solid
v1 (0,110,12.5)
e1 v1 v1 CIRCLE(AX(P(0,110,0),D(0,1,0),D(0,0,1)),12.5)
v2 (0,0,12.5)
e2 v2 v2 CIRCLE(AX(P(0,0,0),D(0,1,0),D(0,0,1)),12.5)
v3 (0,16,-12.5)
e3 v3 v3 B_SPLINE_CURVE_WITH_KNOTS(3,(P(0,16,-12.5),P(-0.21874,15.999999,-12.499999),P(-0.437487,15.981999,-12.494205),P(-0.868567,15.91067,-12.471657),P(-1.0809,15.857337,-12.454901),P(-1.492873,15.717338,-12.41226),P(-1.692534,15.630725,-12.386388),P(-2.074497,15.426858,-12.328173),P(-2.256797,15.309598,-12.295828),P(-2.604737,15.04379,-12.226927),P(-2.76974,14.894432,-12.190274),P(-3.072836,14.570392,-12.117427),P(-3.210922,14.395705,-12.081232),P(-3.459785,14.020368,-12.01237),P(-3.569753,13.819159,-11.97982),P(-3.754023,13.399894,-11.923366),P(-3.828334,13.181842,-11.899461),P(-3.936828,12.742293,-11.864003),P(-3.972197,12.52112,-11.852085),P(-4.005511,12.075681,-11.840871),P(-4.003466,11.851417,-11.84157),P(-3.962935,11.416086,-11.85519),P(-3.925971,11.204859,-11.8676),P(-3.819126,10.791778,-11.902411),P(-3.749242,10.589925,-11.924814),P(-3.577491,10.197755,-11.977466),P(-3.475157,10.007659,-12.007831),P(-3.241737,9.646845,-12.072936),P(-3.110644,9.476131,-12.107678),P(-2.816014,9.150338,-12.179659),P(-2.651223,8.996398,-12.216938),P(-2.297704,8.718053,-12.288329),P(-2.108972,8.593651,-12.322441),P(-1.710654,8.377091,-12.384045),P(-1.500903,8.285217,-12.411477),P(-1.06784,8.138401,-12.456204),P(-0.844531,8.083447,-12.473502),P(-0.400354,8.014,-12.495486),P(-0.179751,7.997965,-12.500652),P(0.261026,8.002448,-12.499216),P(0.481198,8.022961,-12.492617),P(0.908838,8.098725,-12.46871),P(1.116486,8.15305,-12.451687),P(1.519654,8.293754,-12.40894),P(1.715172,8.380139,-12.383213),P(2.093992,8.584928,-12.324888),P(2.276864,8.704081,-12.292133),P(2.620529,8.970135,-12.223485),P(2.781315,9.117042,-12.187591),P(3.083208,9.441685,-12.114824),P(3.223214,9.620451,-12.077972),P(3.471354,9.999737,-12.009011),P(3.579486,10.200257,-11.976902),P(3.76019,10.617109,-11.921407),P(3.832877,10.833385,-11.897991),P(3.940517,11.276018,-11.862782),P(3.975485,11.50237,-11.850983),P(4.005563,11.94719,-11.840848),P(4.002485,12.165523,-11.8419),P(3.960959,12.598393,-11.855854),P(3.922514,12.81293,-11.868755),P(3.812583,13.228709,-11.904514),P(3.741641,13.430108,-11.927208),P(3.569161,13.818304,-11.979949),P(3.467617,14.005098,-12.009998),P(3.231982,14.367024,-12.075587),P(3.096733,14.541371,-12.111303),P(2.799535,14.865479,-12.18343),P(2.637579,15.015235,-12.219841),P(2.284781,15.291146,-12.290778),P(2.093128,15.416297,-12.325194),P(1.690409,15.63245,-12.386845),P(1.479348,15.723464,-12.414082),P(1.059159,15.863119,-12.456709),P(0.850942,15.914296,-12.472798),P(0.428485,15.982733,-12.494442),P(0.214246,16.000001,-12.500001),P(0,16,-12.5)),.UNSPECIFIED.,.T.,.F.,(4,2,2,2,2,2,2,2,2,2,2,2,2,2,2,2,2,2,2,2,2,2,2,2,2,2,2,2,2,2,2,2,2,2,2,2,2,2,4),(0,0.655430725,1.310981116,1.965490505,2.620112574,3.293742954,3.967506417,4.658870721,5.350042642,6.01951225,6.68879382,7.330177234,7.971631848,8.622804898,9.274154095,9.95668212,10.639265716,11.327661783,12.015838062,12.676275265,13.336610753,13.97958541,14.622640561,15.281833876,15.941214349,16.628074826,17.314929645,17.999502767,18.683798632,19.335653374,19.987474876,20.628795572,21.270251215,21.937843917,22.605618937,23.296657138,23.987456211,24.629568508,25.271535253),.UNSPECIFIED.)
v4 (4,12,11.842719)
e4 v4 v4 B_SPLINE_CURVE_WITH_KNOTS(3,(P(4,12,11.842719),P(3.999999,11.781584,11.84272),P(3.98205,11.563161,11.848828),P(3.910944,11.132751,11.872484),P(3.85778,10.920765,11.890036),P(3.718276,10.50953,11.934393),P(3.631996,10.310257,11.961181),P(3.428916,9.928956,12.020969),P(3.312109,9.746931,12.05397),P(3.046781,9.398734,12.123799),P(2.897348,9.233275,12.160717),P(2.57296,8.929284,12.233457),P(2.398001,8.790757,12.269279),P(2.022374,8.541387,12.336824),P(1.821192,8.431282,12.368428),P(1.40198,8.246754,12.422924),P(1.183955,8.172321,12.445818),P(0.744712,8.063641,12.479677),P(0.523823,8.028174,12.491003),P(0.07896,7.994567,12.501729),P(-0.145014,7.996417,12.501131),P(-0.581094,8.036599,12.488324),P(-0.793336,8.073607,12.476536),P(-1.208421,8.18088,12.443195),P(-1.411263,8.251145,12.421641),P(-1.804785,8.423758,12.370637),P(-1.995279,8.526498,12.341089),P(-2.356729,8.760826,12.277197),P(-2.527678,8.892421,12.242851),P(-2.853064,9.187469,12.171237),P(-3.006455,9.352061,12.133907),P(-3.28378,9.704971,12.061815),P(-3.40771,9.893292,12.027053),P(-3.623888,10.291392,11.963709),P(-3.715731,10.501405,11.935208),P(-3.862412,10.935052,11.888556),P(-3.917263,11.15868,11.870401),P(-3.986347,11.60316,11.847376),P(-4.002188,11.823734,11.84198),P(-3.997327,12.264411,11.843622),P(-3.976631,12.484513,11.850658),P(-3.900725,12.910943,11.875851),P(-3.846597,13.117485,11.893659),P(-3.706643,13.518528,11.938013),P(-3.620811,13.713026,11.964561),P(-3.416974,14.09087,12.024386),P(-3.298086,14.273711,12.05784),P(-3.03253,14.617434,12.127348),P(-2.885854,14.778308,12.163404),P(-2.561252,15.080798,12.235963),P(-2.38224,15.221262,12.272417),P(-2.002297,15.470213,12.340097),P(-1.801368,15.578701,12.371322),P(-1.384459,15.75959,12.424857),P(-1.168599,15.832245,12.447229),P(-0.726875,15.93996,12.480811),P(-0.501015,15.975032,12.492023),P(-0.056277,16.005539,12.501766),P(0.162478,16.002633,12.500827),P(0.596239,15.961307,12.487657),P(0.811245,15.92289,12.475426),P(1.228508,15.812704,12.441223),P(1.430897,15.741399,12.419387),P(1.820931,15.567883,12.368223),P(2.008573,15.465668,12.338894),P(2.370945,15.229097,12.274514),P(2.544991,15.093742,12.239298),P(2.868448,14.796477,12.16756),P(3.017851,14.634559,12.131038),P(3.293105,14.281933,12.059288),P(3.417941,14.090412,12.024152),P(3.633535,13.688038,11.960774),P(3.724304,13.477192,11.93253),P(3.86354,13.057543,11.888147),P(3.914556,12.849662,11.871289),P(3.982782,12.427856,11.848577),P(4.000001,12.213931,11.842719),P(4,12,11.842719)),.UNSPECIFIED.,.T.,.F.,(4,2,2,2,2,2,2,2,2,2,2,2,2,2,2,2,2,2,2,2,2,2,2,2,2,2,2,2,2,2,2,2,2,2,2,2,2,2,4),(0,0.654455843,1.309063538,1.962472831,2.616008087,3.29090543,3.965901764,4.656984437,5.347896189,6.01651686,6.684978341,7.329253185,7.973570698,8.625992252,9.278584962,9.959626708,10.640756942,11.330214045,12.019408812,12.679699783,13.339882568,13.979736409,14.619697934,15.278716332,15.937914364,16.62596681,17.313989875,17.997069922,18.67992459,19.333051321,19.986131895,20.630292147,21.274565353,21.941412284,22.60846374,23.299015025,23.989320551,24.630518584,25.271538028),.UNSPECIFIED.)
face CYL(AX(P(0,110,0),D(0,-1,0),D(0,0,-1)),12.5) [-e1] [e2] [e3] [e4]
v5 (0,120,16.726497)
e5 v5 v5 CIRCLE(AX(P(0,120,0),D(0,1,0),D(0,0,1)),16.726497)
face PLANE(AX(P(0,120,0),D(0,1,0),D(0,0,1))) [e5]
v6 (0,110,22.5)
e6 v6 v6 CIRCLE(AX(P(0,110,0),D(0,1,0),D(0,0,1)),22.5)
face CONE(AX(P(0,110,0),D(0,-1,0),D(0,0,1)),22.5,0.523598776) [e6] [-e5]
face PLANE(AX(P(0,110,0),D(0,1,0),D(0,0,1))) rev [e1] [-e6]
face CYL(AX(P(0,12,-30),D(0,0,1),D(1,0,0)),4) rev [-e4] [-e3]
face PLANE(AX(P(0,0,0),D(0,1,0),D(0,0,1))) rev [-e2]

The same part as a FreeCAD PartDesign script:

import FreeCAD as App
import Part
import Sketcher
Q = App.Units.Quantity

doc = App.newDocument("Part")
body = doc.addObject("PartDesign::Body", "Body")

sketch1 = doc.addObject("Sketcher::SketchObject", "Sketch")
body.addObject(sketch1)
sketch1.AttachmentSupport = (doc.XZ_Plane, [""])
sketch1.MapMode = "FlatFace"
sketch1.addGeometry(Part.Circle(App.Vector(0, 0, 0), App.Vector(0, 0, 1), 12), False)
sketch1.addConstraint(Sketcher.Constraint("Coincident", 0, 3, -1, 1))
sketch1.addConstraint(Sketcher.Constraint("Diameter", 0, Q("25 mm")))
pad1 = doc.addObject("PartDesign::Pad", "Pad")
body.addObject(pad1)
pad1.Profile = sketch1
pad1.Length = 110
pad1.Reversed = True

sketch2 = doc.addObject("Sketcher::SketchObject", "Sketch001")
body.addObject(sketch2)
sketch2.AttachmentSupport = (doc.XZ_Plane, [""])
sketch2.MapMode = "FlatFace"
sketch2.AttachmentOffset = App.Placement(App.Vector(0, 0, -110), App.Rotation())
sketch2.addGeometry(Part.Circle(App.Vector(0, 0, 0), App.Vector(0, 0, 1), 22), False)
sketch2.addConstraint(Sketcher.Constraint("Coincident", 0, 3, -1, 1))
sketch2.addConstraint(Sketcher.Constraint("Diameter", 0, Q("45 mm")))
pad2 = doc.addObject("PartDesign::Pad", "Pad001")
body.addObject(pad2)
pad2.Profile = sketch2
pad2.Length = 10
pad2.Reversed = True
pad2.TaperAngle = -30

sketch3 = doc.addObject("Sketcher::SketchObject", "Sketch002")
body.addObject(sketch3)
sketch3.AttachmentSupport = (doc.XY_Plane, [""])
sketch3.MapMode = "FlatFace"
sketch3.addGeometry(Part.Circle(App.Vector(0, 12, 0), App.Vector(0, 0, 1), 4), False)
sketch3.addConstraint(Sketcher.Constraint("PointOnObject", 0, 3, -2))
sketch3.addConstraint(Sketcher.Constraint("Diameter", 0, Q("8 mm")))
sketch3.addConstraint(Sketcher.Constraint("DistanceY", -1, 1, 0, 3, Q("12 mm")))
pocket1 = doc.addObject("PartDesign::Pocket", "Pocket")
body.addObject(pocket1)
pocket1.Profile = sketch3
pocket1.Length = 60
pocket1.Midplane = True

doc.recompute()
